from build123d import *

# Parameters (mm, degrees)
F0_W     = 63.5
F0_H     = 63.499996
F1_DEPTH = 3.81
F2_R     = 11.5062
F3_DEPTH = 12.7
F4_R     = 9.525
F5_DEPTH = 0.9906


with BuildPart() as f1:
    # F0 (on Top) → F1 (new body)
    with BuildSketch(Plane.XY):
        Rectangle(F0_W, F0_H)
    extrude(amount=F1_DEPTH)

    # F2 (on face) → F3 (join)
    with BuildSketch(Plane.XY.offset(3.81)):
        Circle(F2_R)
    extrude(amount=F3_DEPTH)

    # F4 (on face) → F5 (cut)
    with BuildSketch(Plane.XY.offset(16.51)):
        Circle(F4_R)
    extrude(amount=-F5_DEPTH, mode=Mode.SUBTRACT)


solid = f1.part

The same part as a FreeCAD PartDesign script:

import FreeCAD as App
import Part
import Sketcher
Q = App.Units.Quantity


def add_polygon(sketch, points):
    """Adds a closed chain of lines whose ends are joined by coincident constraints."""
    first, n = sketch.GeometryCount, len(points)
    for a, b in zip(points, points[1:] + points[:1]):
        sketch.addGeometry(Part.LineSegment(App.Vector(*a, 0), App.Vector(*b, 0)), False)
    for i in range(n):
        sketch.addConstraint(Sketcher.Constraint("Coincident", first + i, 2, first + (i + 1) % n, 1))

doc = App.newDocument("Part")
params = doc.addObject("Spreadsheet::Sheet", "Params")
for row, (alias, value) in enumerate([
    ("sketch1_width", "2.5 in"),
    ("sketch1_height", "2.4999998 in"),
    ("pad1_length", "0.15 in"),
    ("sketch2_diameter", "0.906 in"),
    ("pad2_length", "0.5 in"),
    ("sketch3_diameter", "0.75 in"),
    ("pocket1_length", "0.039 in"),
], start=1):
    params.set(f"A{row}", alias)
    params.set(f"B{row}", "=" + value)
    params.setAlias(f"B{row}", alias)

body = doc.addObject("PartDesign::Body", "Body")

# Sketch on XY plane
sketch1 = body.newObject("Sketcher::SketchObject", "Sketch")
sketch1.AttachmentSupport = (doc.getObject("XY_Plane"), [""])
sketch1.MapMode = "FlatFace"
add_polygon(sketch1, [(-31.75, 31.749998), (-31.75, -31.749998), (31.75, -31.749998), (31.75, 31.749998)])  # lines 0-3
sketch1.addConstraint([
    Sketcher.Constraint("Vertical", 0),
    Sketcher.Constraint("Horizontal", 1),
    Sketcher.Constraint("Vertical", 2),
    Sketcher.Constraint("Horizontal", 3),
    Sketcher.Constraint("Symmetric", 0, 2, 2, 2, -1, 1),
    Sketcher.Constraint("DistanceX", 1, 1, 1, 2, Q("2.5 in")),
    Sketcher.Constraint("DistanceY", 0, 2, 0, 1, Q("2.4999998 in")),
])
sketch1.setExpression("Constraints[9]", "Params.sketch1_width")
sketch1.setExpression("Constraints[10]", "Params.sketch1_height")
pad1 = body.newObject("PartDesign::Pad", "Pad")
pad1.Profile = sketch1
pad1.setExpression("Length", "Params.pad1_length")

# Sketch on XY plane
sketch2 = body.newObject("Sketcher::SketchObject", "Sketch001")
sketch2.AttachmentSupport = (doc.getObject("XY_Plane"), [""])
sketch2.MapMode = "FlatFace"
sketch2.AttachmentOffset = App.Placement(App.Vector(0, 0, 0.15 * 25.4), App.Rotation())
sketch2.addGeometry(Part.Circle(App.Vector(0, 0, 0), App.Vector(0, 0, 1), 11.5062), False)
sketch2.addConstraint([
    Sketcher.Constraint("Coincident", 0, 3, -1, 1),
    Sketcher.Constraint("Diameter", 0, Q("0.906 in")),
])
sketch2.setExpression("Constraints[1]", "Params.sketch2_diameter")
pad2 = body.newObject("PartDesign::Pad", "Pad001")
pad2.Profile = sketch2
pad2.setExpression("Length", "Params.pad2_length")

# Sketch on XY plane
sketch3 = body.newObject("Sketcher::SketchObject", "Sketch002")
sketch3.AttachmentSupport = (doc.getObject("XY_Plane"), [""])
sketch3.MapMode = "FlatFace"
sketch3.AttachmentOffset = App.Placement(App.Vector(0, 0, 0.65 * 25.4), App.Rotation())
sketch3.addGeometry(Part.Circle(App.Vector(0, 0, 0), App.Vector(0, 0, 1), 9.525), False)
sketch3.addConstraint([
    Sketcher.Constraint("Coincident", 0, 3, -1, 1),
    Sketcher.Constraint("Diameter", 0, Q("0.75 in")),
])
sketch3.setExpression("Constraints[1]", "Params.sketch3_diameter")
pocket1 = body.newObject("PartDesign::Pocket", "Pocket")
pocket1.Profile = sketch3
pocket1.setExpression("Length", "Params.pocket1_length")

doc.recompute()
